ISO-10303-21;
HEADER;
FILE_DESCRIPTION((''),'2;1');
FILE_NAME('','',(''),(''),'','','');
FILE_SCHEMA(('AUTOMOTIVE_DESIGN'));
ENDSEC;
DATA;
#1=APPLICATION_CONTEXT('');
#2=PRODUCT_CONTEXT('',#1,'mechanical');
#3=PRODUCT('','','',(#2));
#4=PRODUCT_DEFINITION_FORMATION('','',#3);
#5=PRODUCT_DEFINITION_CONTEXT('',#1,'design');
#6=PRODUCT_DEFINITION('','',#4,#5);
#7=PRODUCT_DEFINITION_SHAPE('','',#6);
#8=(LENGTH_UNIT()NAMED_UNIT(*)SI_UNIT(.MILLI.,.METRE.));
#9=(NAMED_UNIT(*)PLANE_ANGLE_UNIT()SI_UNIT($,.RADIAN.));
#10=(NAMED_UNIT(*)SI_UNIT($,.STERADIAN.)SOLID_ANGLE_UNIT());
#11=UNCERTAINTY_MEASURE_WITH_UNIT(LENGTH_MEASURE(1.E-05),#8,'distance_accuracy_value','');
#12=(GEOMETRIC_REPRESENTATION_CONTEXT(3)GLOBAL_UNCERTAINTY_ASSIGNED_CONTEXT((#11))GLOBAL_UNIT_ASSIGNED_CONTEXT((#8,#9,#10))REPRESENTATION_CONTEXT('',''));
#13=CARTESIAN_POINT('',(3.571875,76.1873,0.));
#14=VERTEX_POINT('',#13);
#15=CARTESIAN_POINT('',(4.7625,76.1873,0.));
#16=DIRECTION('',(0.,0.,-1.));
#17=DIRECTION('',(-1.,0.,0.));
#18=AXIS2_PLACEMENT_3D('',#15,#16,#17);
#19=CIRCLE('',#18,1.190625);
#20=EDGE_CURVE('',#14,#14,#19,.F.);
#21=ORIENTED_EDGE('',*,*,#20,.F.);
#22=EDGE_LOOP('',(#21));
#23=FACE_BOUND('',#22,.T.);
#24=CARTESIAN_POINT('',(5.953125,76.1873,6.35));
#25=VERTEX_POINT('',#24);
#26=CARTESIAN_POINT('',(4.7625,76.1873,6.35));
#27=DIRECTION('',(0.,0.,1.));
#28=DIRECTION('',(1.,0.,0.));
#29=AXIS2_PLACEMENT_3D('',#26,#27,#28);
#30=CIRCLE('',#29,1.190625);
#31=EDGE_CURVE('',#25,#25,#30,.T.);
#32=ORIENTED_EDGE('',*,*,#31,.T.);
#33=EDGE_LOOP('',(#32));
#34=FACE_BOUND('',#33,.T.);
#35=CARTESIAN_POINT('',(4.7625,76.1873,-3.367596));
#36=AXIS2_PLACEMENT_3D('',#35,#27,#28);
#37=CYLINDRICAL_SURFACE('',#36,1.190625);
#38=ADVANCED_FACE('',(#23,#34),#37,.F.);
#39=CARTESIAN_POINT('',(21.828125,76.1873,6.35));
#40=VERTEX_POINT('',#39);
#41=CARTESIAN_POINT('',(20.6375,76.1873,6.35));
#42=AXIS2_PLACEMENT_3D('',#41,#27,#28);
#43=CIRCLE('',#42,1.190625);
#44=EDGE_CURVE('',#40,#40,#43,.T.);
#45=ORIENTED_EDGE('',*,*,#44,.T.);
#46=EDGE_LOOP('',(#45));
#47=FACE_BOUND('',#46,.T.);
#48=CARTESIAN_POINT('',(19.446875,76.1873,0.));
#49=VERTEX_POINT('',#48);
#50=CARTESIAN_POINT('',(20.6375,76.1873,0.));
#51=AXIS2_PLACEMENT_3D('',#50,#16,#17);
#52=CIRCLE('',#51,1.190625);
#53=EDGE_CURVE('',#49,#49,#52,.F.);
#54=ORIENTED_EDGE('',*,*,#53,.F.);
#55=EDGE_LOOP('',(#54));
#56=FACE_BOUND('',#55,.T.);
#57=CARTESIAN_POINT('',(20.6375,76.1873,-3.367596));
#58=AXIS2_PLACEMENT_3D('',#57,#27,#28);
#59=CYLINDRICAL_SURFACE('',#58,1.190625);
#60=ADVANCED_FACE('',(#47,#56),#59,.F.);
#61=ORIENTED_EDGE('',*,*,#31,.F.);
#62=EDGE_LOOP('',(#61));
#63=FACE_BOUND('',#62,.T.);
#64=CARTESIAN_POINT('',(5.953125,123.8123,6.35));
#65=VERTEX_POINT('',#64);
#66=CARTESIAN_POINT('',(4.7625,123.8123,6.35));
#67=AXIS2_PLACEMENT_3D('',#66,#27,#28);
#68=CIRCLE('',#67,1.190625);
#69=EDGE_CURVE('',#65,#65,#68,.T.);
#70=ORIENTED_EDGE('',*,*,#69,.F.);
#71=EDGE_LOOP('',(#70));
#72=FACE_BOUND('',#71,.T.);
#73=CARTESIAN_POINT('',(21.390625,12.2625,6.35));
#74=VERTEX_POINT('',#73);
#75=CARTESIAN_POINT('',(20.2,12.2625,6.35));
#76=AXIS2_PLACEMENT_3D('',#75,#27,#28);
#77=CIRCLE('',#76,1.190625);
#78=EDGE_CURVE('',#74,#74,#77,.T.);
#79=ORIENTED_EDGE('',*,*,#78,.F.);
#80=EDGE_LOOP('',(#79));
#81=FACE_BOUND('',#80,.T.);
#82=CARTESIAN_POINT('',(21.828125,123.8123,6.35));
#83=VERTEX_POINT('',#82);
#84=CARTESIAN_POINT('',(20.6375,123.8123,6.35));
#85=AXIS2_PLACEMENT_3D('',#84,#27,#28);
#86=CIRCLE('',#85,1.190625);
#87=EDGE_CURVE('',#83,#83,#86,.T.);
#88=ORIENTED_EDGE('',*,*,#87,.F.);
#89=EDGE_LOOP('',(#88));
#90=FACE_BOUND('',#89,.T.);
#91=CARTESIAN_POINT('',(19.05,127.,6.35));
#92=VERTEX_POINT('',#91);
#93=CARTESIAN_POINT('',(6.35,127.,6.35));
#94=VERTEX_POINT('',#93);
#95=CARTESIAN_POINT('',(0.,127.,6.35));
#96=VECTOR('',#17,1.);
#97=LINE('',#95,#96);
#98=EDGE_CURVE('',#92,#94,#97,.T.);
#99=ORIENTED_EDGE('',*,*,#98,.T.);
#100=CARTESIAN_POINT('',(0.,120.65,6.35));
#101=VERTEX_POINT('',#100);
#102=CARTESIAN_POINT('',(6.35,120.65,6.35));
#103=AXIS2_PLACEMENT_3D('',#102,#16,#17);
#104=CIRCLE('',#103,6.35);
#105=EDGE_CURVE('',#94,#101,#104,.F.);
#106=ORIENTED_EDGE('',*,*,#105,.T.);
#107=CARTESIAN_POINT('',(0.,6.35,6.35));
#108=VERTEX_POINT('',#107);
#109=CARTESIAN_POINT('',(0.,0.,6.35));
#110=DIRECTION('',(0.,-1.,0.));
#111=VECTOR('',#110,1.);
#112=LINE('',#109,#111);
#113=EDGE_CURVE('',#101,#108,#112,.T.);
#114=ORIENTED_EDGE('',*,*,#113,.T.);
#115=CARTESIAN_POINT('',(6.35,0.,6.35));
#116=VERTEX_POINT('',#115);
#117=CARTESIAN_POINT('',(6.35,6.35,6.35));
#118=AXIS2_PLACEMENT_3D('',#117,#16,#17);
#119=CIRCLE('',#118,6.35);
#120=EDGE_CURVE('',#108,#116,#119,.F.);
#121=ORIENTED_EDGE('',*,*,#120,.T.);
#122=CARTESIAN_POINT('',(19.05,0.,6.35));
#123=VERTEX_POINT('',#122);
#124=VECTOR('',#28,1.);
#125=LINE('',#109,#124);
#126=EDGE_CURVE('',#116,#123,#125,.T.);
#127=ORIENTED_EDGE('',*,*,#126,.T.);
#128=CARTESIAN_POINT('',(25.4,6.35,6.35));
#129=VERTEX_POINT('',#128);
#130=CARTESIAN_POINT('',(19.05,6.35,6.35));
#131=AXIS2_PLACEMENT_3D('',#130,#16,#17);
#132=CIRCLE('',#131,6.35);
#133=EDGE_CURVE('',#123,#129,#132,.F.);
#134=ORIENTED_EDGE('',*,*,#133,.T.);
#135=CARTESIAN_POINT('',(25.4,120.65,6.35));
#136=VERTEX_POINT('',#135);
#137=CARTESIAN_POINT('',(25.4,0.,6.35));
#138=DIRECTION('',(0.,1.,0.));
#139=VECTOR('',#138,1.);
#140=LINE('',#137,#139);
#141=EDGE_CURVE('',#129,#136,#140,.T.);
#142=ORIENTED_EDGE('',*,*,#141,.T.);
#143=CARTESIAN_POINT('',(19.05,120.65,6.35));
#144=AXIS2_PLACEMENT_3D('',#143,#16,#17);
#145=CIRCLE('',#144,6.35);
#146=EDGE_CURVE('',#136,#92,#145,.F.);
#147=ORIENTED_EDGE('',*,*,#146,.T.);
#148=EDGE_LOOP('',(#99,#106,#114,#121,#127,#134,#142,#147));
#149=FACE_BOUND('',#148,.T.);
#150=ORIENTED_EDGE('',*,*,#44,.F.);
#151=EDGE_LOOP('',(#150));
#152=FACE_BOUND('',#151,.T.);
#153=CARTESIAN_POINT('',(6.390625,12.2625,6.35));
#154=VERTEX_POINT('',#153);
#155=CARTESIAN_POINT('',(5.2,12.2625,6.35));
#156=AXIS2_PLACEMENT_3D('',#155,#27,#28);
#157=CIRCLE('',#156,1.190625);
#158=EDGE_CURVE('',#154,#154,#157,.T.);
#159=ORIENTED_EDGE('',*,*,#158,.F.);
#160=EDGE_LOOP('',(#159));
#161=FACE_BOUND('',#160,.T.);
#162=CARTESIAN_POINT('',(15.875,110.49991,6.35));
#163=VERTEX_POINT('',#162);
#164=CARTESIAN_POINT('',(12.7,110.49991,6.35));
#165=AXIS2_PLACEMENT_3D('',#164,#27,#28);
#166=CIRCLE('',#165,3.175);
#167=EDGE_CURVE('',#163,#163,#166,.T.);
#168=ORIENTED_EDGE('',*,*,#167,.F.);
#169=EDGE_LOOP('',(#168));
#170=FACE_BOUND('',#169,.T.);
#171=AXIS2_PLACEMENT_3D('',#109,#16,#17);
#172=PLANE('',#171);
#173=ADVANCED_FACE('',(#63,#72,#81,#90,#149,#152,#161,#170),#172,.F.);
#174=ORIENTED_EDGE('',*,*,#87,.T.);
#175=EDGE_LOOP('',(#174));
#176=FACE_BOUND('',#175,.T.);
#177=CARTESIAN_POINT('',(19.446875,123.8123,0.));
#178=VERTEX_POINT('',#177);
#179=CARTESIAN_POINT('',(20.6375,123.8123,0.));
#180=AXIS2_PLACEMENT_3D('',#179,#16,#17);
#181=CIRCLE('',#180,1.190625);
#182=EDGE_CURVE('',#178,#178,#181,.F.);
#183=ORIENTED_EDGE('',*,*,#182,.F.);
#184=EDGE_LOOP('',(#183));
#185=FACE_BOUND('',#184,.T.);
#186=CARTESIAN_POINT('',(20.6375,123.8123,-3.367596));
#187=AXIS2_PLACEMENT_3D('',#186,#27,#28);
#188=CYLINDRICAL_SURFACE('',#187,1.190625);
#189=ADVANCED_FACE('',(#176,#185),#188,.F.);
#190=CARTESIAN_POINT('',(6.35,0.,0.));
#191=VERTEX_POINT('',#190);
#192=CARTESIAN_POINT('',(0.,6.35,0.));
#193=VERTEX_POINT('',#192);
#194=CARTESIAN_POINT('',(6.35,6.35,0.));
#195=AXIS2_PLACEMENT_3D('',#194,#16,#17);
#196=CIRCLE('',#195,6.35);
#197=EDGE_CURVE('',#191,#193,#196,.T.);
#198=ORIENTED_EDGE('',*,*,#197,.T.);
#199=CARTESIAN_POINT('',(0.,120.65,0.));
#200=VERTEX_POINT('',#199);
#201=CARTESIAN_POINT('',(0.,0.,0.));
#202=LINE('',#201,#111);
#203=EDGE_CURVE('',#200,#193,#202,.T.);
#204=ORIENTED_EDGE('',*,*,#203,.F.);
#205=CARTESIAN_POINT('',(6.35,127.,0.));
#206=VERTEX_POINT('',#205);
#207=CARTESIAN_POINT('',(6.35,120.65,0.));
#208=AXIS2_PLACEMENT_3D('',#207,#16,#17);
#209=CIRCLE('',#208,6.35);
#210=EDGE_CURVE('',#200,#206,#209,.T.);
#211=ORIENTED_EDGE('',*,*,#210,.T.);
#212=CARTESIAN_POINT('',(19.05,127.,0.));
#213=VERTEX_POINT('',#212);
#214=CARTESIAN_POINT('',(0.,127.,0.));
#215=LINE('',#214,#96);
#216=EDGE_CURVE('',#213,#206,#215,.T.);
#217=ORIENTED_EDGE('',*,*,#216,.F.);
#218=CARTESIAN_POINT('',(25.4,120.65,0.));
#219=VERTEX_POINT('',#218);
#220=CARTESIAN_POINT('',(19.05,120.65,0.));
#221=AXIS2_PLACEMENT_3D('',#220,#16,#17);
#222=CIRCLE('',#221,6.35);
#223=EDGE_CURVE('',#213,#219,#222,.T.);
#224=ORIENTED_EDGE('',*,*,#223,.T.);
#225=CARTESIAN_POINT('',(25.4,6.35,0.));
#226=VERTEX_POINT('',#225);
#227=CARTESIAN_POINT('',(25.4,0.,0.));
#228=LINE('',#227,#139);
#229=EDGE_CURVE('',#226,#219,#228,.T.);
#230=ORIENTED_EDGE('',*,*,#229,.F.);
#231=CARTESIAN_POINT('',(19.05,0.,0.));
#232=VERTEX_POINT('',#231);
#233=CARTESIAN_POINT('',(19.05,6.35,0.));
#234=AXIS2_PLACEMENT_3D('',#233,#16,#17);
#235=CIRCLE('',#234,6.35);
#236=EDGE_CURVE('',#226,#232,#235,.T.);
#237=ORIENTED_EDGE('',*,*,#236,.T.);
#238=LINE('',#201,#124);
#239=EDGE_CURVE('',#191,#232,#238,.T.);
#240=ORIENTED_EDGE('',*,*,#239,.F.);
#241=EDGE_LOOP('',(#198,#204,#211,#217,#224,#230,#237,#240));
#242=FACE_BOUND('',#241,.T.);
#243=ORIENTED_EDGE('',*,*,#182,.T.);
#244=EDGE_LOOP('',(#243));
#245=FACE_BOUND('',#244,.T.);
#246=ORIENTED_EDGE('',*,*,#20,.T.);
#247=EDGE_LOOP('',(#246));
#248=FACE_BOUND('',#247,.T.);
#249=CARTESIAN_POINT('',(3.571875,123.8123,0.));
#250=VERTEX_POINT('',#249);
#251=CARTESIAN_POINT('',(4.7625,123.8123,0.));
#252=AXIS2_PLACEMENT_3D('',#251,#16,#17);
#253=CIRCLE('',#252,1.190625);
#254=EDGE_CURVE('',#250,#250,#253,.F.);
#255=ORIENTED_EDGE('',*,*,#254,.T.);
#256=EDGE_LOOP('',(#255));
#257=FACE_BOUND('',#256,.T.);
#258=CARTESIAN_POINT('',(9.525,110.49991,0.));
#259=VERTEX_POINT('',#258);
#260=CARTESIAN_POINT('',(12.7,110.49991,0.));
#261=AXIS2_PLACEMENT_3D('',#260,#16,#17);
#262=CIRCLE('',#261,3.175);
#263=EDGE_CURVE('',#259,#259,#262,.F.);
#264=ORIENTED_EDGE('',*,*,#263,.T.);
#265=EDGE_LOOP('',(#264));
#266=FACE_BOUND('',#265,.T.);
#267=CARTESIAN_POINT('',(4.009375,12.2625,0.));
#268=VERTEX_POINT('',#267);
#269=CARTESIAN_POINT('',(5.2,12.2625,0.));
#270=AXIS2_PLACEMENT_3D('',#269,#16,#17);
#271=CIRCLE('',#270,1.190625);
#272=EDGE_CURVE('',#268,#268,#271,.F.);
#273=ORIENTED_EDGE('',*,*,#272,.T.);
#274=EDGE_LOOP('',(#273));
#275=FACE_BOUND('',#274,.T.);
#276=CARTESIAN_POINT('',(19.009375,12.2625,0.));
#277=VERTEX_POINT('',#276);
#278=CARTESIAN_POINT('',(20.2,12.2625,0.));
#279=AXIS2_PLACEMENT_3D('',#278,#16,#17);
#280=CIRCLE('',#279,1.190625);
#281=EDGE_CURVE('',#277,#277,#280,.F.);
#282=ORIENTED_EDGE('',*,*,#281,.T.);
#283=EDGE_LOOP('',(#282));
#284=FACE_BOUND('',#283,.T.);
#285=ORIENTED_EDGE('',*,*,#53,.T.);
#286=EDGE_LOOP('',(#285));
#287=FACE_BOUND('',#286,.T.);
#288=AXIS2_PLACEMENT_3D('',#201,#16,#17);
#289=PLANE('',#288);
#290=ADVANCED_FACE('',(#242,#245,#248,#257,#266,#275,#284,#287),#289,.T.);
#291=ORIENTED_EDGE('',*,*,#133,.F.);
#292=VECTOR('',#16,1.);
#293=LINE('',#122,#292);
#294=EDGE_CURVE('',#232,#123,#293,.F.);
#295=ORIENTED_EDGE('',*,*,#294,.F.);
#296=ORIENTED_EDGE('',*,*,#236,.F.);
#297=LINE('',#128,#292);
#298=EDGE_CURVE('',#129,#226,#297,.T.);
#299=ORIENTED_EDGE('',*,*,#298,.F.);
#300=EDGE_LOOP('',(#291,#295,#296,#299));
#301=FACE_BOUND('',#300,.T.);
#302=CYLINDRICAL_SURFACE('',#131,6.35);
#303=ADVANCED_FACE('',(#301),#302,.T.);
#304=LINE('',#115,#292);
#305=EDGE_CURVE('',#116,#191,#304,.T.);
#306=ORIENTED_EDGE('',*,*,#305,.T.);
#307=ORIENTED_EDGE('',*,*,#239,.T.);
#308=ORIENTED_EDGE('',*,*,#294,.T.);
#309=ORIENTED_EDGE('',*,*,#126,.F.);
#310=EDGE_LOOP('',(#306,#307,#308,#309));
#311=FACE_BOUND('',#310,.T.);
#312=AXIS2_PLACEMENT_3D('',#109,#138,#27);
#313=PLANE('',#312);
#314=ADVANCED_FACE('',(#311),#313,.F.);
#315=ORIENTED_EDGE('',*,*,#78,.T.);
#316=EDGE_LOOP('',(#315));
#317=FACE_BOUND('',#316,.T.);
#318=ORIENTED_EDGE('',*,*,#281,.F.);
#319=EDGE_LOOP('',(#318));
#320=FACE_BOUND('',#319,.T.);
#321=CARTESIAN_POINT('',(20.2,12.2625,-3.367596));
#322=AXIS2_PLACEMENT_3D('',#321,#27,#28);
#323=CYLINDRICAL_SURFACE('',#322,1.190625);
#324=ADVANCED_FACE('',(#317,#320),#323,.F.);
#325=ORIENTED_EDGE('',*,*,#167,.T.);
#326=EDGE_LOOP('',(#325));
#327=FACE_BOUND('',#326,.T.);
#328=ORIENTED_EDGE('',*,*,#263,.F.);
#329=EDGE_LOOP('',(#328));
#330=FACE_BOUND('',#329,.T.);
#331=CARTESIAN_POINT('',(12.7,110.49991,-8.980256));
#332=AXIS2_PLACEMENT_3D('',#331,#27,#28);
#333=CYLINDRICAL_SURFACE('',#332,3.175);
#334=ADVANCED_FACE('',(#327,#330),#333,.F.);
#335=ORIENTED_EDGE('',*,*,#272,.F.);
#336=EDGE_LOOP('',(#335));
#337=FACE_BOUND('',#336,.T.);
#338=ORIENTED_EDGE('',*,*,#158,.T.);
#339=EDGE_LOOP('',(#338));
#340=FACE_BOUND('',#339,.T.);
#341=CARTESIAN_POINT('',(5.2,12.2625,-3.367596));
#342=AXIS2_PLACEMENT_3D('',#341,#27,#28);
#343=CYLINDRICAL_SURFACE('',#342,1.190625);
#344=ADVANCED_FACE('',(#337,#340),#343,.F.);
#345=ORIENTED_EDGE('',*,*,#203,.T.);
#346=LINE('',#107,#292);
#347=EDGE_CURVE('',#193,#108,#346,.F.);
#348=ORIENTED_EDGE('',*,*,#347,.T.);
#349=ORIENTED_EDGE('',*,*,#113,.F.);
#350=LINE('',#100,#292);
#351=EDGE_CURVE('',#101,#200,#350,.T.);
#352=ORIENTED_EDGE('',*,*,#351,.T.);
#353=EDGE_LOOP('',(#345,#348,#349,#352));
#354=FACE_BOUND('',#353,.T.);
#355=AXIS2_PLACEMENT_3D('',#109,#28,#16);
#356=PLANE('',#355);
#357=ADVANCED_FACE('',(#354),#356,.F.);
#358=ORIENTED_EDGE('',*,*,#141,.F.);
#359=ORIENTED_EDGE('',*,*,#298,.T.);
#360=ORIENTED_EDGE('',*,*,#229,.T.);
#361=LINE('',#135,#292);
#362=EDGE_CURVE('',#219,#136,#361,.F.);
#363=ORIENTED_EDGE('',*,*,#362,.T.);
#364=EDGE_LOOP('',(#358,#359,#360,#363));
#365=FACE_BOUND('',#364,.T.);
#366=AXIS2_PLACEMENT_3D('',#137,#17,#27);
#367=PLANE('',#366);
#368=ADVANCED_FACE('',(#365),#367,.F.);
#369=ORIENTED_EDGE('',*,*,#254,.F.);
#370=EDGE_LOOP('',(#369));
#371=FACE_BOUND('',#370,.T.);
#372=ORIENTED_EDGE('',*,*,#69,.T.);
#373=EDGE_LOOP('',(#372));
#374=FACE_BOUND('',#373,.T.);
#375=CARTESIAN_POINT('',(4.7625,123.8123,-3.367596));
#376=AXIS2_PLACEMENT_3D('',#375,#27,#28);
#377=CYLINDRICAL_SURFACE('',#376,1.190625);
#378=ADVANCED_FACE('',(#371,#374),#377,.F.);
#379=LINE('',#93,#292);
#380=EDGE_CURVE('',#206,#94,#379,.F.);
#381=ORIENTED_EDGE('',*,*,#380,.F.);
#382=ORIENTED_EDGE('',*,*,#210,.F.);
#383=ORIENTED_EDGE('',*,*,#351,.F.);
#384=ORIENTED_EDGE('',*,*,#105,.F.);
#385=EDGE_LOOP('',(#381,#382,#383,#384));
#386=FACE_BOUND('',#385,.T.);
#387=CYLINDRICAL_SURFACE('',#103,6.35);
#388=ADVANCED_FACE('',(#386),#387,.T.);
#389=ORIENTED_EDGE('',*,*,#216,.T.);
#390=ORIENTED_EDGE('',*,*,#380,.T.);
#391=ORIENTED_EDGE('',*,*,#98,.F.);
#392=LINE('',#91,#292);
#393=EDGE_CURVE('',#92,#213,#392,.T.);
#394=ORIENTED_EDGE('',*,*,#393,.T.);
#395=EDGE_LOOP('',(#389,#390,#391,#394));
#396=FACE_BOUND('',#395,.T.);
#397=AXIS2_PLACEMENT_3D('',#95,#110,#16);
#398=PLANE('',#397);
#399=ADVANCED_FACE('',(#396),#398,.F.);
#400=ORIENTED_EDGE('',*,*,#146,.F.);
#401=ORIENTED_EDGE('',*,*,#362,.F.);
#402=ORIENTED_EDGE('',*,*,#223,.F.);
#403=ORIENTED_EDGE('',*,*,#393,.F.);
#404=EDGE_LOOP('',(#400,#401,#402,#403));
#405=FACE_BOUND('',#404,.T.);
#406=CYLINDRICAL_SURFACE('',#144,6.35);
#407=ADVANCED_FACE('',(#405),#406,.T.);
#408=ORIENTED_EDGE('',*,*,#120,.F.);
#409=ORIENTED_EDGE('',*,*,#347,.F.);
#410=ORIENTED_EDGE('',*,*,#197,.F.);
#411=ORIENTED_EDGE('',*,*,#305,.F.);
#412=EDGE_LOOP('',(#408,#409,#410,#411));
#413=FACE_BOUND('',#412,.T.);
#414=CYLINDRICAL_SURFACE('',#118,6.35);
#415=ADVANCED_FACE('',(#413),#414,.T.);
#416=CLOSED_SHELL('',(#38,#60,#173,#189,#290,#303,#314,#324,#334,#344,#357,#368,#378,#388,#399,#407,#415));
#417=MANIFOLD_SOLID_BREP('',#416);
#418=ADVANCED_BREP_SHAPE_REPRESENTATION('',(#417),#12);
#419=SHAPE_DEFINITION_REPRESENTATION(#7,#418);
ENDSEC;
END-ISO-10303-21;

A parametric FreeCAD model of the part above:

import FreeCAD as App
import Part
import Sketcher
Q = App.Units.Quantity


def edges_at(feature, points):
    """Names of the edges that pass closest to the given points."""
    edges = feature.Shape.Edges
    near = lambda p: min(range(len(edges)), key=lambda i: edges[i].distToShape(Part.Vertex(*p))[0])
    return sorted({f"Edge{near(p) + 1}" for p in points})


def add_polygon(sketch, points):
    """Adds a closed chain of lines whose ends are joined by coincident constraints."""
    first, n = sketch.GeometryCount, len(points)
    for a, b in zip(points, points[1:] + points[:1]):
        sketch.addGeometry(Part.LineSegment(App.Vector(*a, 0), App.Vector(*b, 0)), False)
    for i in range(n):
        sketch.addConstraint(Sketcher.Constraint("Coincident", first + i, 2, first + (i + 1) % n, 1))

doc = App.newDocument("Part")
params = doc.addObject("Spreadsheet::Sheet", "Params")
for row, (alias, value) in enumerate([
    ("sketch1_width", "1 in"),
    ("sketch1_height", "5 in"),
    ("pad1_length", "0.25 in"),
    ("sketch2_diameter", "0.09375 in"),
    ("pocket1_length", "0.25 in"),
    ("fillet_radius", "0.25 in"),
    ("sketch3_diameter", "0.25 in"),
    ("pocket2_length", "0.25 in"),
    ("sketch4_diameter", "0.09375 in"),
    ("pocket3_length", "0.25 in"),
], start=1):
    params.set(f"A{row}", alias)
    params.set(f"B{row}", "=" + value)
    params.setAlias(f"B{row}", alias)

body = doc.addObject("PartDesign::Body", "Body")

# Sketch on XY plane
sketch1 = body.newObject("Sketcher::SketchObject", "Sketch")
sketch1.AttachmentSupport = (doc.getObject("XY_Plane"), [""])
sketch1.MapMode = "FlatFace"
add_polygon(sketch1, [(0, 127), (0, 0), (25, 0), (25, 127)])  # lines 0-3
sketch1.addConstraint([
    Sketcher.Constraint("Vertical", 0),
    Sketcher.Constraint("Horizontal", 1),
    Sketcher.Constraint("Vertical", 2),
    Sketcher.Constraint("Horizontal", 3),
    Sketcher.Constraint("Coincident", 0, 2, -1, 1),
    Sketcher.Constraint("DistanceX", 1, 1, 1, 2, Q("1 in")),
    Sketcher.Constraint("DistanceY", 0, 2, 0, 1, Q("5 in")),
])
sketch1.setExpression("Constraints[9]", "Params.sketch1_width")
sketch1.setExpression("Constraints[10]", "Params.sketch1_height")
pad1 = body.newObject("PartDesign::Pad", "Pad")
pad1.Profile = sketch1
pad1.setExpression("Length", "Params.pad1_length")

# Sketch on XY plane
sketch2 = body.newObject("Sketcher::SketchObject", "Sketch001")
sketch2.AttachmentSupport = (doc.getObject("XY_Plane"), [""])
sketch2.MapMode = "FlatFace"
sketch2.AttachmentOffset = App.Placement(App.Vector(0, 0, 0.25 * 25.4), App.Rotation())
sketch2.addGeometry([
    Part.Circle(App.Vector(5.2, 12.3, 0), App.Vector(0, 0, 1), 1.2),
    Part.Circle(App.Vector(20.2, 12.3, 0), App.Vector(0, 0, 1), 1.2),
], False)
sketch2.addConstraint([
    Sketcher.Constraint("Equal", 0, 1),
    Sketcher.Constraint("Horizontal", 0, 3, 1, 3),
    Sketcher.Constraint("Diameter", 0, Q("0.09375 in")),
    Sketcher.Constraint("DistanceX", -1, 1, 0, 3, Q("5.2 mm")),
    Sketcher.Constraint("DistanceY", -1, 1, 0, 3, Q("12.2625 mm")),
    Sketcher.Constraint("DistanceX", -1, 1, 1, 3, Q("20.2 mm")),
])
sketch2.setExpression("Constraints[2]", "Params.sketch2_diameter")
pocket1 = body.newObject("PartDesign::Pocket", "Pocket")
pocket1.Profile = sketch2
pocket1.setExpression("Length", "Params.pocket1_length")
doc.recompute()

fillet = body.newObject("PartDesign::Fillet", "Fillet")
fillet.Base = (pocket1, edges_at(pocket1, [
    (0, 127, 3.175),
    (25.4, 127, 3.175),
    (25.4, 0, 3.175),
    (0, 0, 3.175),
]))
fillet.setExpression("Radius", "Params.fillet_radius")

# Sketch on XY plane
sketch3 = body.newObject("Sketcher::SketchObject", "Sketch002")
sketch3.AttachmentSupport = (doc.getObject("XY_Plane"), [""])
sketch3.MapMode = "FlatFace"
sketch3.AttachmentOffset = App.Placement(App.Vector(0, 0, 0.25 * 25.4), App.Rotation())
sketch3.addGeometry(Part.Circle(App.Vector(12.7, 110.5, 0), App.Vector(0, 0, 1), 3.2), False)
sketch3.addConstraint([
    Sketcher.Constraint("Diameter", 0, Q("0.25 in")),
    Sketcher.Constraint("DistanceX", -1, 1, 0, 3, Q("0.5 in")),
    Sketcher.Constraint("DistanceY", -1, 1, 0, 3, Q("110.49991 mm")),
])
sketch3.setExpression("Constraints[0]", "Params.sketch3_diameter")
pocket2 = body.newObject("PartDesign::Pocket", "Pocket001")
pocket2.Profile = sketch3
pocket2.setExpression("Length", "Params.pocket2_length")

# Sketch on XY plane
sketch4 = body.newObject("Sketcher::SketchObject", "Sketch003")
sketch4.AttachmentSupport = (doc.getObject("XY_Plane"), [""])
sketch4.MapMode = "FlatFace"
sketch4.AttachmentOffset = App.Placement(App.Vector(0, 0, 0.25 * 25.4), App.Rotation())
sketch4.addGeometry([
    Part.Circle(App.Vector(4.8, 123.8, 0), App.Vector(0, 0, 1), 1.2),
    Part.Circle(App.Vector(20.6, 123.8, 0), App.Vector(0, 0, 1), 1.2),
    Part.Circle(App.Vector(20.6, 76.2, 0), App.Vector(0, 0, 1), 1.2),
    Part.Circle(App.Vector(4.8, 76.2, 0), App.Vector(0, 0, 1), 1.2),
], False)
sketch4.addConstraint([
    Sketcher.Constraint("Equal", 0, 1),
    Sketcher.Constraint("Equal", 1, 2),
    Sketcher.Constraint("Equal", 2, 3),
    Sketcher.Constraint("Horizontal", 0, 3, 1, 3),
    Sketcher.Constraint("Horizontal", 2, 3, 3, 3),
    Sketcher.Constraint("Vertical", 1, 3, 2, 3),
    Sketcher.Constraint("Vertical", 0, 3, 3, 3),
    Sketcher.Constraint("Diameter", 0, Q("0.09375 in")),
    Sketcher.Constraint("DistanceX", -1, 1, 0, 3, Q("0.1875 in")),
    Sketcher.Constraint("DistanceX", -1, 1, 1, 3, Q("0.8125 in")),
    Sketcher.Constraint("DistanceY", 2, 3, 1, 3, Q("1.875 in")),
    Sketcher.Constraint("DistanceY", -1, 1, 0, 3, Q("4.8745 in")),
])
sketch4.setExpression("Constraints[7]", "Params.sketch4_diameter")
pocket3 = body.newObject("PartDesign::Pocket", "Pocket002")
pocket3.Profile = sketch4
pocket3.setExpression("Length", "Params.pocket3_length")

doc.recompute()
